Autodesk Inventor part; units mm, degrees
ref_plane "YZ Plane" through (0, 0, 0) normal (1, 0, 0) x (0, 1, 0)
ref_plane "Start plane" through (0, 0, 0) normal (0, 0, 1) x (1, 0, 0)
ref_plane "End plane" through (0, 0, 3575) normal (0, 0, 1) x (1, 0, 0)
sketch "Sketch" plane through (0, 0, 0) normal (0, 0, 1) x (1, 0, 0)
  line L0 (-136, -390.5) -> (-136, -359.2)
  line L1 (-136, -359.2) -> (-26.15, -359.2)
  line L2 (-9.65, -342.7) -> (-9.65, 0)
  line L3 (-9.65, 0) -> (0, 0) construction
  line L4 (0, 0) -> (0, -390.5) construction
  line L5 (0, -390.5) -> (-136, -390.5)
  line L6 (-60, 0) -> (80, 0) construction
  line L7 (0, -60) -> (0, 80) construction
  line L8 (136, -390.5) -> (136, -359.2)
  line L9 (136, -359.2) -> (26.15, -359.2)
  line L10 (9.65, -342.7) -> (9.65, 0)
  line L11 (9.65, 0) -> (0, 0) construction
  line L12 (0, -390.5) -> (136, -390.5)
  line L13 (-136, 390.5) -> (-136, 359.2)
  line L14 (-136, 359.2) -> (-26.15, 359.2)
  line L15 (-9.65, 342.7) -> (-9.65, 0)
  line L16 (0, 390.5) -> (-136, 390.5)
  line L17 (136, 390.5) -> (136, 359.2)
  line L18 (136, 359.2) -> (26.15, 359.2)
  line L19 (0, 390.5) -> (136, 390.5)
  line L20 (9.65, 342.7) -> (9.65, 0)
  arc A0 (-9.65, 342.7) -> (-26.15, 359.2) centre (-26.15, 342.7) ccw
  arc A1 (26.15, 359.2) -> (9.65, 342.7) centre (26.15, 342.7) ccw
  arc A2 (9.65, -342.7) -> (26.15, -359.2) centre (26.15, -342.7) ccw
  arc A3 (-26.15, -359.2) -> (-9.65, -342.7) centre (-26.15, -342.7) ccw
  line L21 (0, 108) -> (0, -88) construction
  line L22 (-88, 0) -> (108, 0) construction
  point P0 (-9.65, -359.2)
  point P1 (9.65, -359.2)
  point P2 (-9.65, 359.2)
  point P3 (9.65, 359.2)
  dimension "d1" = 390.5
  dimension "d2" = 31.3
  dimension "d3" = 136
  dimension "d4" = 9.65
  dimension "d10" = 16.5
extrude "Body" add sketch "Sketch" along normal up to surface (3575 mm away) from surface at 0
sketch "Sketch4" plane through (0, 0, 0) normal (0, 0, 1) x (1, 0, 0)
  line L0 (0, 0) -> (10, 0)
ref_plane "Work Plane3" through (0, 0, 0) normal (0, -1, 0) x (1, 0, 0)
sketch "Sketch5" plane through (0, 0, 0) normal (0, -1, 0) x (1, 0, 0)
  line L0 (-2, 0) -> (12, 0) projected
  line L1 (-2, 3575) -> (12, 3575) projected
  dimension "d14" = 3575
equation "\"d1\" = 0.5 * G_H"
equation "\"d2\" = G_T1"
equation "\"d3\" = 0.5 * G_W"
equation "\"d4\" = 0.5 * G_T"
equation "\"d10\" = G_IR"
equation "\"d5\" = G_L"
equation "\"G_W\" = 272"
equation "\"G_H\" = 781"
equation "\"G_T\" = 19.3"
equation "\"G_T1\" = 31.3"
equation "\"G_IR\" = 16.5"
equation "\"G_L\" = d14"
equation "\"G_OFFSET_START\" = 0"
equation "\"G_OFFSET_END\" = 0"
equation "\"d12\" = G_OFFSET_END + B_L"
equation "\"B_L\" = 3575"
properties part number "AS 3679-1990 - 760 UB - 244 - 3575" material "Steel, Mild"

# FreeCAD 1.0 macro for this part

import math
import FreeCAD as App
import Part
import Sketcher
from FreeCAD import Vector

doc = App.newDocument("Part")
body = doc.addObject("PartDesign::Body", "Body")

sketch1 = body.newObject("Sketcher::SketchObject", "Sketch")
sketch1.AttachmentSupport = (doc.getObject("XY_Plane"), [""])
sketch1.MapMode = "FlatFace"
sketch1.addGeometry([
    Part.LineSegment(Vector(-136, -359, 0), Vector(-136, -390, 0)),
    Part.LineSegment(Vector(-136, -390, 0), Vector(136, -390, 0)),
    Part.LineSegment(Vector(136, -390, 0), Vector(136, -359, 0)),
    Part.LineSegment(Vector(136, -359, 0), Vector(26, -359, 0)),
    Part.ArcOfCircle(Part.Circle(Vector(26, -343, 0), Vector(0, 0, 1), 16), math.radians(180), math.radians(270)),
    Part.LineSegment(Vector(10, -343, 0), Vector(10, 343, 0)),
    Part.ArcOfCircle(Part.Circle(Vector(26, 343, 0), Vector(0, 0, 1), 16), math.radians(90), math.radians(180)),
    Part.LineSegment(Vector(26, 359, 0), Vector(136, 359, 0)),
    Part.LineSegment(Vector(136, 359, 0), Vector(136, 390, 0)),
    Part.LineSegment(Vector(136, 390, 0), Vector(-136, 390, 0)),
    Part.LineSegment(Vector(-136, 390, 0), Vector(-136, 359, 0)),
    Part.LineSegment(Vector(-136, 359, 0), Vector(-26, 359, 0)),
    Part.ArcOfCircle(Part.Circle(Vector(-26, 343, 0), Vector(0, 0, 1), 16), math.radians(0), math.radians(90)),
    Part.LineSegment(Vector(-10, 343, 0), Vector(-10, -343, 0)),
    Part.ArcOfCircle(Part.Circle(Vector(-26, -343, 0), Vector(0, 0, 1), 16), math.radians(-90), math.radians(0)),
    Part.LineSegment(Vector(-26, -359, 0), Vector(-136, -359, 0)),
], False)
sketch1.addConstraint([
    Sketcher.Constraint("Coincident", 0, 2, 1, 1),
    Sketcher.Constraint("Coincident", 1, 2, 2, 1),
    Sketcher.Constraint("Coincident", 2, 2, 3, 1),
    Sketcher.Constraint("Tangent", 3, 2, 4, 2),
    Sketcher.Constraint("Tangent", 4, 1, 5, 1),
    Sketcher.Constraint("Tangent", 5, 2, 6, 2),
    Sketcher.Constraint("Tangent", 6, 1, 7, 1),
    Sketcher.Constraint("Coincident", 7, 2, 8, 1),
    Sketcher.Constraint("Coincident", 8, 2, 9, 1),
    Sketcher.Constraint("Coincident", 9, 2, 10, 1),
    Sketcher.Constraint("Coincident", 10, 2, 11, 1),
    Sketcher.Constraint("Tangent", 11, 2, 12, 2),
    Sketcher.Constraint("Tangent", 12, 1, 13, 1),
    Sketcher.Constraint("Tangent", 13, 2, 14, 2),
    Sketcher.Constraint("Tangent", 14, 1, 15, 1),
    Sketcher.Constraint("Coincident", 15, 2, 0, 1),
    Sketcher.Constraint("Vertical", 0),
    Sketcher.Constraint("Horizontal", 1),
    Sketcher.Constraint("Vertical", 2),
    Sketcher.Constraint("Horizontal", 3),
    Sketcher.Constraint("Vertical", 5),
    Sketcher.Constraint("Horizontal", 7),
    Sketcher.Constraint("Vertical", 8),
    Sketcher.Constraint("Horizontal", 9),
    Sketcher.Constraint("Vertical", 10),
    Sketcher.Constraint("Horizontal", 11),
    Sketcher.Constraint("Vertical", 13),
    Sketcher.Constraint("Horizontal", 15),
    Sketcher.Constraint("Equal", 4, 6),
    Sketcher.Constraint("Equal", 6, 12),
    Sketcher.Constraint("Equal", 12, 14),
    Sketcher.Constraint("Symmetric", 4, 3, 12, 3, -1, 1),
    Sketcher.Constraint("Symmetric", 0, 2, 8, 2, -1, 1),
    Sketcher.Constraint("Symmetric", 7, 2, 10, 2, -2),
    Sketcher.Constraint("Symmetric", 2, 2, 15, 2, -2),
    Sketcher.Constraint("Radius", 4, 16.5),
    Sketcher.Constraint("DistanceY", 0, 2, 0, 1, 31.3),
    Sketcher.Constraint("DistanceX", 0, 2, -1, 1, 136.0),
    Sketcher.Constraint("DistanceY", 0, 2, -1, 1, 390.5),
    Sketcher.Constraint("DistanceX", -1, 1, 4, 1, 9.65),
])
pad1 = body.newObject("PartDesign::Pad", "Pad")
pad1.Profile = sketch1
pad1.Length = 3575

doc.recompute()
